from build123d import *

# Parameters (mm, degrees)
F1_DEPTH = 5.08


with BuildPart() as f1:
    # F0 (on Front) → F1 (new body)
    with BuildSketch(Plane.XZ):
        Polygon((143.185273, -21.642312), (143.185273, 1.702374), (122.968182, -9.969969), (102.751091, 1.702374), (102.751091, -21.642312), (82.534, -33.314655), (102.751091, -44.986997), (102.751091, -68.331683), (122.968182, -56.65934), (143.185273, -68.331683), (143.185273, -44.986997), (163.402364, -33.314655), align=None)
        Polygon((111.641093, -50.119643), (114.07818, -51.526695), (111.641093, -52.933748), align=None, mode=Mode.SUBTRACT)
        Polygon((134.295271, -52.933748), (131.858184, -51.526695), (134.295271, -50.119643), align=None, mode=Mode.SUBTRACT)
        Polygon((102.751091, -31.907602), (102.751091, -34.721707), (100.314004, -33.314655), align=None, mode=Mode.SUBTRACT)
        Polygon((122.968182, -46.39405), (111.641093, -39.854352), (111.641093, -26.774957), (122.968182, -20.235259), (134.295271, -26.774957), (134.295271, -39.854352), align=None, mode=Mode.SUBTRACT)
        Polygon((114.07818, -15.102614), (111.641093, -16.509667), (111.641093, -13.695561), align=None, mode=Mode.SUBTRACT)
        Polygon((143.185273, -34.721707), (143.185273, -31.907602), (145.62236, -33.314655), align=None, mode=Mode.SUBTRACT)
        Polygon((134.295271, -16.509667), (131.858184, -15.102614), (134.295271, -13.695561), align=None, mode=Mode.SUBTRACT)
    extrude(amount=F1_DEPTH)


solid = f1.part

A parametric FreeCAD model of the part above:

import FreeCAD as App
import Part
import Sketcher
from FreeCAD import Vector
Q = App.Units.Quantity

doc = App.newDocument("Part")
body = doc.addObject("PartDesign::Body", "Body")

sketch1 = body.newObject("Sketcher::SketchObject", "Sketch")
sketch1.AttachmentSupport = (doc.getObject("XZ_Plane"), [""])
sketch1.MapMode = "FlatFace"
sketch1.addGeometry(Part.LineSegment(Vector(143.2, -21.6, 0), Vector(143.2, 1.7, 0)), False)
sketch1.addGeometry(Part.LineSegment(Vector(143.2, 1.7, 0), Vector(123, -10, 0)), False)
sketch1.addGeometry(Part.LineSegment(Vector(123, -10, 0), Vector(102.8, 1.7, 0)), False)
sketch1.addGeometry(Part.LineSegment(Vector(102.8, 1.7, 0), Vector(102.8, -21.6, 0)), False)
sketch1.addGeometry(Part.LineSegment(Vector(102.8, -21.6, 0), Vector(82.5, -33.3, 0)), False)
sketch1.addGeometry(Part.LineSegment(Vector(82.5, -33.3, 0), Vector(102.8, -45, 0)), False)
sketch1.addGeometry(Part.LineSegment(Vector(102.8, -45, 0), Vector(102.8, -68.3, 0)), False)
sketch1.addGeometry(Part.LineSegment(Vector(102.8, -68.3, 0), Vector(123, -56.7, 0)), False)
sketch1.addGeometry(Part.LineSegment(Vector(123, -56.7, 0), Vector(143.2, -68.3, 0)), False)
sketch1.addGeometry(Part.LineSegment(Vector(143.2, -68.3, 0), Vector(143.2, -45, 0)), False)
sketch1.addGeometry(Part.LineSegment(Vector(143.2, -45, 0), Vector(163.4, -33.3, 0)), False)
sketch1.addGeometry(Part.LineSegment(Vector(163.4, -33.3, 0), Vector(143.2, -21.6, 0)), False)
sketch1.addGeometry(Part.LineSegment(Vector(111.6, -52.9, 0), Vector(111.6, -50.1, 0)), False)
sketch1.addGeometry(Part.LineSegment(Vector(111.6, -50.1, 0), Vector(114.1, -51.5, 0)), False)
sketch1.addGeometry(Part.LineSegment(Vector(114.1, -51.5, 0), Vector(111.6, -52.9, 0)), False)
sketch1.addGeometry(Part.LineSegment(Vector(100.3, -33.3, 0), Vector(102.8, -31.9, 0)), False)
sketch1.addGeometry(Part.LineSegment(Vector(102.8, -31.9, 0), Vector(102.8, -34.7, 0)), False)
sketch1.addGeometry(Part.LineSegment(Vector(102.8, -34.7, 0), Vector(100.3, -33.3, 0)), False)
sketch1.addGeometry(Part.LineSegment(Vector(134.3, -50.1, 0), Vector(134.3, -52.9, 0)), False)
sketch1.addGeometry(Part.LineSegment(Vector(134.3, -52.9, 0), Vector(131.9, -51.5, 0)), False)
sketch1.addGeometry(Part.LineSegment(Vector(131.9, -51.5, 0), Vector(134.3, -50.1, 0)), False)
sketch1.addGeometry(Part.LineSegment(Vector(134.3, -39.9, 0), Vector(123, -46.4, 0)), False)
sketch1.addGeometry(Part.LineSegment(Vector(123, -46.4, 0), Vector(111.6, -39.9, 0)), False)
sketch1.addGeometry(Part.LineSegment(Vector(111.6, -39.9, 0), Vector(111.6, -26.8, 0)), False)
sketch1.addGeometry(Part.LineSegment(Vector(111.6, -26.8, 0), Vector(123, -20.2, 0)), False)
sketch1.addGeometry(Part.LineSegment(Vector(123, -20.2, 0), Vector(134.3, -26.8, 0)), False)
sketch1.addGeometry(Part.LineSegment(Vector(134.3, -26.8, 0), Vector(134.3, -39.9, 0)), False)
sketch1.addGeometry(Part.LineSegment(Vector(145.6, -33.3, 0), Vector(143.2, -34.7, 0)), False)
sketch1.addGeometry(Part.LineSegment(Vector(143.2, -34.7, 0), Vector(143.2, -31.9, 0)), False)
sketch1.addGeometry(Part.LineSegment(Vector(143.2, -31.9, 0), Vector(145.6, -33.3, 0)), False)
sketch1.addGeometry(Part.LineSegment(Vector(111.6, -13.7, 0), Vector(114.1, -15.1, 0)), False)
sketch1.addGeometry(Part.LineSegment(Vector(114.1, -15.1, 0), Vector(111.6, -16.5, 0)), False)
sketch1.addGeometry(Part.LineSegment(Vector(111.6, -16.5, 0), Vector(111.6, -13.7, 0)), False)
sketch1.addGeometry(Part.LineSegment(Vector(134.3, -13.7, 0), Vector(134.3, -16.5, 0)), False)
sketch1.addGeometry(Part.LineSegment(Vector(134.3, -16.5, 0), Vector(131.9, -15.1, 0)), False)
sketch1.addGeometry(Part.LineSegment(Vector(131.9, -15.1, 0), Vector(134.3, -13.7, 0)), False)
sketch1.addConstraint(Sketcher.Constraint("Coincident", 0, 2, 1, 1))
sketch1.addConstraint(Sketcher.Constraint("Coincident", 1, 2, 2, 1))
sketch1.addConstraint(Sketcher.Constraint("Coincident", 2, 2, 3, 1))
sketch1.addConstraint(Sketcher.Constraint("Coincident", 3, 2, 4, 1))
sketch1.addConstraint(Sketcher.Constraint("Coincident", 4, 2, 5, 1))
sketch1.addConstraint(Sketcher.Constraint("Coincident", 5, 2, 6, 1))
sketch1.addConstraint(Sketcher.Constraint("Coincident", 6, 2, 7, 1))
sketch1.addConstraint(Sketcher.Constraint("Coincident", 7, 2, 8, 1))
sketch1.addConstraint(Sketcher.Constraint("Coincident", 8, 2, 9, 1))
sketch1.addConstraint(Sketcher.Constraint("Coincident", 9, 2, 10, 1))
sketch1.addConstraint(Sketcher.Constraint("Coincident", 10, 2, 11, 1))
sketch1.addConstraint(Sketcher.Constraint("Coincident", 11, 2, 0, 1))
sketch1.addConstraint(Sketcher.Constraint("Coincident", 12, 2, 13, 1))
sketch1.addConstraint(Sketcher.Constraint("Coincident", 13, 2, 14, 1))
sketch1.addConstraint(Sketcher.Constraint("Coincident", 14, 2, 12, 1))
sketch1.addConstraint(Sketcher.Constraint("Coincident", 15, 2, 16, 1))
sketch1.addConstraint(Sketcher.Constraint("Coincident", 16, 2, 17, 1))
sketch1.addConstraint(Sketcher.Constraint("Coincident", 17, 2, 15, 1))
sketch1.addConstraint(Sketcher.Constraint("Coincident", 18, 2, 19, 1))
sketch1.addConstraint(Sketcher.Constraint("Coincident", 19, 2, 20, 1))
sketch1.addConstraint(Sketcher.Constraint("Coincident", 20, 2, 18, 1))
sketch1.addConstraint(Sketcher.Constraint("Coincident", 21, 2, 22, 1))
sketch1.addConstraint(Sketcher.Constraint("Coincident", 22, 2, 23, 1))
sketch1.addConstraint(Sketcher.Constraint("Coincident", 23, 2, 24, 1))
sketch1.addConstraint(Sketcher.Constraint("Coincident", 24, 2, 25, 1))
sketch1.addConstraint(Sketcher.Constraint("Coincident", 25, 2, 26, 1))
sketch1.addConstraint(Sketcher.Constraint("Coincident", 26, 2, 21, 1))
sketch1.addConstraint(Sketcher.Constraint("Coincident", 27, 2, 28, 1))
sketch1.addConstraint(Sketcher.Constraint("Coincident", 28, 2, 29, 1))
sketch1.addConstraint(Sketcher.Constraint("Coincident", 29, 2, 27, 1))
sketch1.addConstraint(Sketcher.Constraint("Coincident", 30, 2, 31, 1))
sketch1.addConstraint(Sketcher.Constraint("Coincident", 31, 2, 32, 1))
sketch1.addConstraint(Sketcher.Constraint("Coincident", 32, 2, 30, 1))
sketch1.addConstraint(Sketcher.Constraint("Coincident", 33, 2, 34, 1))
sketch1.addConstraint(Sketcher.Constraint("Coincident", 34, 2, 35, 1))
sketch1.addConstraint(Sketcher.Constraint("Coincident", 35, 2, 33, 1))
sketch1.addConstraint(Sketcher.Constraint("Vertical", 0))
sketch1.addConstraint(Sketcher.Constraint("Vertical", 3))
sketch1.addConstraint(Sketcher.Constraint("Vertical", 6))
sketch1.addConstraint(Sketcher.Constraint("Vertical", 9))
sketch1.addConstraint(Sketcher.Constraint("Vertical", 12))
sketch1.addConstraint(Sketcher.Constraint("Vertical", 16))
sketch1.addConstraint(Sketcher.Constraint("Vertical", 18))
sketch1.addConstraint(Sketcher.Constraint("Vertical", 23))
sketch1.addConstraint(Sketcher.Constraint("Vertical", 26))
sketch1.addConstraint(Sketcher.Constraint("Vertical", 28))
sketch1.addConstraint(Sketcher.Constraint("Vertical", 32))
sketch1.addConstraint(Sketcher.Constraint("Vertical", 33))
sketch1.addConstraint(Sketcher.Constraint("Parallel", 1, 4))
sketch1.addConstraint(Sketcher.Constraint("Parallel", 2, 5))
sketch1.addConstraint(Sketcher.Constraint("Parallel", 4, 7))
sketch1.addConstraint(Sketcher.Constraint("Parallel", 5, 8))
sketch1.addConstraint(Sketcher.Constraint("Parallel", 7, 10))
sketch1.addConstraint(Sketcher.Constraint("Parallel", 8, 11))
sketch1.addConstraint(Sketcher.Constraint("Parallel", 11, 13))
sketch1.addConstraint(Sketcher.Constraint("Parallel", 10, 14))
sketch1.addConstraint(Sketcher.Constraint("Parallel", 14, 15))
sketch1.addConstraint(Sketcher.Constraint("Parallel", 13, 17))
sketch1.addConstraint(Sketcher.Constraint("Parallel", 17, 19))
sketch1.addConstraint(Sketcher.Constraint("Parallel", 15, 20))
sketch1.addConstraint(Sketcher.Constraint("Parallel", 20, 21))
sketch1.addConstraint(Sketcher.Constraint("Parallel", 19, 22))
sketch1.addConstraint(Sketcher.Constraint("Parallel", 21, 24))
sketch1.addConstraint(Sketcher.Constraint("Parallel", 22, 25))
sketch1.addConstraint(Sketcher.Constraint("Parallel", 24, 27))
sketch1.addConstraint(Sketcher.Constraint("Parallel", 25, 29))
sketch1.addConstraint(Sketcher.Constraint("Parallel", 29, 30))
sketch1.addConstraint(Sketcher.Constraint("Parallel", 27, 31))
sketch1.addConstraint(Sketcher.Constraint("Parallel", 30, 34))
sketch1.addConstraint(Sketcher.Constraint("Parallel", 31, 35))
sketch1.addConstraint(Sketcher.Constraint("Horizontal", 0, 2, 2, 2))
sketch1.addConstraint(Sketcher.Constraint("Horizontal", 6, 2, 8, 2))
sketch1.addConstraint(Sketcher.Constraint("Horizontal", 5, 2, 9, 2))
sketch1.addConstraint(Sketcher.Constraint("Horizontal", 4, 2, 10, 2))
sketch1.addConstraint(Sketcher.Constraint("Horizontal", 3, 2, 11, 2))
sketch1.addConstraint(Sketcher.Constraint("Horizontal", 10, 2, 17, 2))
sketch1.addConstraint(Sketcher.Constraint("Horizontal", 14, 2, 18, 2))
sketch1.addConstraint(Sketcher.Constraint("Horizontal", 13, 2, 19, 2))
sketch1.addConstraint(Sketcher.Constraint("Horizontal", 12, 2, 20, 2))
sketch1.addConstraint(Sketcher.Constraint("Horizontal", 23, 2, 25, 2))
sketch1.addConstraint(Sketcher.Constraint("Horizontal", 22, 2, 26, 2))
sketch1.addConstraint(Sketcher.Constraint("Horizontal", 16, 2, 27, 2))
sketch1.addConstraint(Sketcher.Constraint("Horizontal", 15, 2, 28, 2))
sketch1.addConstraint(Sketcher.Constraint("Horizontal", 31, 2, 33, 2))
sketch1.addConstraint(Sketcher.Constraint("Horizontal", 30, 2, 34, 2))
sketch1.addConstraint(Sketcher.Constraint("Vertical", 3, 2, 5, 2))
sketch1.addConstraint(Sketcher.Constraint("Vertical", 6, 2, 15, 2))
sketch1.addConstraint(Sketcher.Constraint("Vertical", 7, 2, 21, 2))
sketch1.addConstraint(Sketcher.Constraint("Vertical", 14, 2, 22, 2))
sketch1.addConstraint(Sketcher.Constraint("Vertical", 20, 2, 25, 2))
sketch1.addConstraint(Sketcher.Constraint("Vertical", 11, 2, 27, 2))
sketch1.addConstraint(Sketcher.Constraint("Vertical", 13, 2, 30, 2))
sketch1.addConstraint(Sketcher.Constraint("Vertical", 23, 2, 31, 2))
sketch1.addConstraint(Sketcher.Constraint("Vertical", 26, 2, 33, 2))
sketch1.addConstraint(Sketcher.Constraint("Equal", 3, 6))
sketch1.addConstraint(Sketcher.Constraint("Equal", 12, 16))
sketch1.addConstraint(Sketcher.Constraint("Equal", 2, 4))
sketch1.addConstraint(Sketcher.Constraint("Angle", 1, Q("-150 deg")))
sketch1.addConstraint(Sketcher.Constraint("DistanceX", 4, 2, 17, 2, Q("0.7000002 in")))
sketch1.addConstraint(Sketcher.Constraint("DistanceX", 13, 2, 19, 2, Q("0.7000002 in")))
sketch1.addConstraint(Sketcher.Constraint("DistanceX", -1, 1, 4, 2, 82.534))
sketch1.addConstraint(Sketcher.Constraint("DistanceY", 17, 2, 23, 2, 6.539698))
sketch1.addConstraint(Sketcher.Constraint("DistanceY", 23, 2, 24, 2, 6.539698))
sketch1.addConstraint(Sketcher.Constraint("DistanceY", 0, 1, 0, 2, 23.344686))
sketch1.addConstraint(Sketcher.Constraint("DistanceY", 23, 1, 23, 2, 13.079395))
sketch1.addConstraint(Sketcher.Constraint("DistanceY", 1, 2, -1, 1, 9.969969))
sketch1.addConstraint(Sketcher.Constraint("DistanceY", 32, 2, -1, 1, 13.695561))
sketch1.addConstraint(Sketcher.Constraint("DistanceY", 6, 2, 12, 2, 18.21204))
pad1 = body.newObject("PartDesign::Pad", "Pad")
pad1.Profile = sketch1
pad1.Length = Q("0.2 in")

doc.recompute()
